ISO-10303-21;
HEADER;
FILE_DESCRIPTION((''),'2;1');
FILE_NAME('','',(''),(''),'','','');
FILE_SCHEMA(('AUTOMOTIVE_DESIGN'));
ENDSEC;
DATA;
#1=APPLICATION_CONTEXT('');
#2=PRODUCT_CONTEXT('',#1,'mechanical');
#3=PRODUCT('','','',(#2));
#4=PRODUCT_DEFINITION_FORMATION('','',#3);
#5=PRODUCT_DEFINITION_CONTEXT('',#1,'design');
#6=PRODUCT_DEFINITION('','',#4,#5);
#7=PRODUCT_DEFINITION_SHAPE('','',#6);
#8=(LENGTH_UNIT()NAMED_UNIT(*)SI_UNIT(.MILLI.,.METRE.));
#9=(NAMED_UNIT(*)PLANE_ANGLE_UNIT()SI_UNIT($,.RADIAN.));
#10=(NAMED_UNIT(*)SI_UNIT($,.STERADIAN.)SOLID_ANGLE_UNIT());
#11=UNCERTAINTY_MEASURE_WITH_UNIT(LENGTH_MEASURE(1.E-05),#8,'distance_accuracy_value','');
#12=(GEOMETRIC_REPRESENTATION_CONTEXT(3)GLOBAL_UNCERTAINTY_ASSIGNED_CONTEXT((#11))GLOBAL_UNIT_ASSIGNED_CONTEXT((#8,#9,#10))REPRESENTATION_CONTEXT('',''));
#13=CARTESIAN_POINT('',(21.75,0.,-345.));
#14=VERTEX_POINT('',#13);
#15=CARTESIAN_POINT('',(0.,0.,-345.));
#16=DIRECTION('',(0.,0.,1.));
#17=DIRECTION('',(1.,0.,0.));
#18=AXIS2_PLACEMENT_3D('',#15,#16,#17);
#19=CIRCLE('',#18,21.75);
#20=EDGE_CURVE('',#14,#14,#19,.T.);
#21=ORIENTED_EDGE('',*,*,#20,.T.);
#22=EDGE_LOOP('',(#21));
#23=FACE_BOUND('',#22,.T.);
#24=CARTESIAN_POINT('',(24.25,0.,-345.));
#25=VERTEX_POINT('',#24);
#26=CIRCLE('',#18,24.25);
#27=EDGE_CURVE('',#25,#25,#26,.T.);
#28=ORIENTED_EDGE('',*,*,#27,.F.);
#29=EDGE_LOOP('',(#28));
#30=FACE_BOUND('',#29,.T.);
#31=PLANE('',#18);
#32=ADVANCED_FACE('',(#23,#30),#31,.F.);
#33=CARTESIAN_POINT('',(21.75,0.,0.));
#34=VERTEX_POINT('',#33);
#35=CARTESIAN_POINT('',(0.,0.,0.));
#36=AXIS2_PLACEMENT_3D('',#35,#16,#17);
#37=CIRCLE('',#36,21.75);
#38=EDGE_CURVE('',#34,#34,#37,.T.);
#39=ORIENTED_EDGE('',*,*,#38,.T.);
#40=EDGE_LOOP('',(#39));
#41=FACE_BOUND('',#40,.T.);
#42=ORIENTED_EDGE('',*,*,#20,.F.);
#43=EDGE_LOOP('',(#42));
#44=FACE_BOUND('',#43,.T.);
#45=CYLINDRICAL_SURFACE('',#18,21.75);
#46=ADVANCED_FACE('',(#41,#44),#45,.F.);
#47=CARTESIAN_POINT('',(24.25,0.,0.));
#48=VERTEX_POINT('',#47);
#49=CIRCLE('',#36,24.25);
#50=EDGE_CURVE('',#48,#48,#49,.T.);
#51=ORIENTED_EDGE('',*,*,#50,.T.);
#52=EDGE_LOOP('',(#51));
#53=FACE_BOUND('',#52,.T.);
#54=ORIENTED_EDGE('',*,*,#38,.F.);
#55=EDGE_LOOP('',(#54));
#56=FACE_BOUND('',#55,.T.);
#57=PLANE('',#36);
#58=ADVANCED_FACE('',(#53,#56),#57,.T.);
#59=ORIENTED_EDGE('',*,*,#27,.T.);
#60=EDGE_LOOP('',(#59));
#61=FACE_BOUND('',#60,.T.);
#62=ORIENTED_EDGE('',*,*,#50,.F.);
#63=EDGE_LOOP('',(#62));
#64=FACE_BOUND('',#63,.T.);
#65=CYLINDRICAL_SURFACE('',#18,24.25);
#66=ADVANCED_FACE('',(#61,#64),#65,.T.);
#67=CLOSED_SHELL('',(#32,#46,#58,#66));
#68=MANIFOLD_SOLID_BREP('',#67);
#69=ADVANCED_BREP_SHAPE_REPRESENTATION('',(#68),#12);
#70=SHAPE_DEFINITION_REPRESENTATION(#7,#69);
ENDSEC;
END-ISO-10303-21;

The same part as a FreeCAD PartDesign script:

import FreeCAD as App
import Part
import Sketcher

V = App.Vector

doc = App.newDocument("Part")
body = doc.addObject("PartDesign::Body", "Body")

sketch1 = body.newObject("Sketcher::SketchObject", "Sketch")
sketch1.AttachmentSupport = (doc.getObject("XY_Plane"), [""])
sketch1.MapMode = "FlatFace"
sketch1.addGeometry(Part.Circle(V(0, 0, 0), V(0, 0, 1), 24), False)
sketch1.addGeometry(Part.Circle(V(0, 0, 0), V(0, 0, 1), 22), False)
sketch1.addConstraint(Sketcher.Constraint("Coincident", 0, 3, -1, 1))
sketch1.addConstraint(Sketcher.Constraint("Coincident", 1, 3, -1, 1))
sketch1.addConstraint(Sketcher.Constraint("Diameter", 0, 48.5))
sketch1.addConstraint(Sketcher.Constraint("Diameter", 1, 43.5))
pad1 = body.newObject("PartDesign::Pad", "Pad")
pad1.Profile = sketch1
pad1.Length = 345
pad1.Reversed = True

doc.recompute()
